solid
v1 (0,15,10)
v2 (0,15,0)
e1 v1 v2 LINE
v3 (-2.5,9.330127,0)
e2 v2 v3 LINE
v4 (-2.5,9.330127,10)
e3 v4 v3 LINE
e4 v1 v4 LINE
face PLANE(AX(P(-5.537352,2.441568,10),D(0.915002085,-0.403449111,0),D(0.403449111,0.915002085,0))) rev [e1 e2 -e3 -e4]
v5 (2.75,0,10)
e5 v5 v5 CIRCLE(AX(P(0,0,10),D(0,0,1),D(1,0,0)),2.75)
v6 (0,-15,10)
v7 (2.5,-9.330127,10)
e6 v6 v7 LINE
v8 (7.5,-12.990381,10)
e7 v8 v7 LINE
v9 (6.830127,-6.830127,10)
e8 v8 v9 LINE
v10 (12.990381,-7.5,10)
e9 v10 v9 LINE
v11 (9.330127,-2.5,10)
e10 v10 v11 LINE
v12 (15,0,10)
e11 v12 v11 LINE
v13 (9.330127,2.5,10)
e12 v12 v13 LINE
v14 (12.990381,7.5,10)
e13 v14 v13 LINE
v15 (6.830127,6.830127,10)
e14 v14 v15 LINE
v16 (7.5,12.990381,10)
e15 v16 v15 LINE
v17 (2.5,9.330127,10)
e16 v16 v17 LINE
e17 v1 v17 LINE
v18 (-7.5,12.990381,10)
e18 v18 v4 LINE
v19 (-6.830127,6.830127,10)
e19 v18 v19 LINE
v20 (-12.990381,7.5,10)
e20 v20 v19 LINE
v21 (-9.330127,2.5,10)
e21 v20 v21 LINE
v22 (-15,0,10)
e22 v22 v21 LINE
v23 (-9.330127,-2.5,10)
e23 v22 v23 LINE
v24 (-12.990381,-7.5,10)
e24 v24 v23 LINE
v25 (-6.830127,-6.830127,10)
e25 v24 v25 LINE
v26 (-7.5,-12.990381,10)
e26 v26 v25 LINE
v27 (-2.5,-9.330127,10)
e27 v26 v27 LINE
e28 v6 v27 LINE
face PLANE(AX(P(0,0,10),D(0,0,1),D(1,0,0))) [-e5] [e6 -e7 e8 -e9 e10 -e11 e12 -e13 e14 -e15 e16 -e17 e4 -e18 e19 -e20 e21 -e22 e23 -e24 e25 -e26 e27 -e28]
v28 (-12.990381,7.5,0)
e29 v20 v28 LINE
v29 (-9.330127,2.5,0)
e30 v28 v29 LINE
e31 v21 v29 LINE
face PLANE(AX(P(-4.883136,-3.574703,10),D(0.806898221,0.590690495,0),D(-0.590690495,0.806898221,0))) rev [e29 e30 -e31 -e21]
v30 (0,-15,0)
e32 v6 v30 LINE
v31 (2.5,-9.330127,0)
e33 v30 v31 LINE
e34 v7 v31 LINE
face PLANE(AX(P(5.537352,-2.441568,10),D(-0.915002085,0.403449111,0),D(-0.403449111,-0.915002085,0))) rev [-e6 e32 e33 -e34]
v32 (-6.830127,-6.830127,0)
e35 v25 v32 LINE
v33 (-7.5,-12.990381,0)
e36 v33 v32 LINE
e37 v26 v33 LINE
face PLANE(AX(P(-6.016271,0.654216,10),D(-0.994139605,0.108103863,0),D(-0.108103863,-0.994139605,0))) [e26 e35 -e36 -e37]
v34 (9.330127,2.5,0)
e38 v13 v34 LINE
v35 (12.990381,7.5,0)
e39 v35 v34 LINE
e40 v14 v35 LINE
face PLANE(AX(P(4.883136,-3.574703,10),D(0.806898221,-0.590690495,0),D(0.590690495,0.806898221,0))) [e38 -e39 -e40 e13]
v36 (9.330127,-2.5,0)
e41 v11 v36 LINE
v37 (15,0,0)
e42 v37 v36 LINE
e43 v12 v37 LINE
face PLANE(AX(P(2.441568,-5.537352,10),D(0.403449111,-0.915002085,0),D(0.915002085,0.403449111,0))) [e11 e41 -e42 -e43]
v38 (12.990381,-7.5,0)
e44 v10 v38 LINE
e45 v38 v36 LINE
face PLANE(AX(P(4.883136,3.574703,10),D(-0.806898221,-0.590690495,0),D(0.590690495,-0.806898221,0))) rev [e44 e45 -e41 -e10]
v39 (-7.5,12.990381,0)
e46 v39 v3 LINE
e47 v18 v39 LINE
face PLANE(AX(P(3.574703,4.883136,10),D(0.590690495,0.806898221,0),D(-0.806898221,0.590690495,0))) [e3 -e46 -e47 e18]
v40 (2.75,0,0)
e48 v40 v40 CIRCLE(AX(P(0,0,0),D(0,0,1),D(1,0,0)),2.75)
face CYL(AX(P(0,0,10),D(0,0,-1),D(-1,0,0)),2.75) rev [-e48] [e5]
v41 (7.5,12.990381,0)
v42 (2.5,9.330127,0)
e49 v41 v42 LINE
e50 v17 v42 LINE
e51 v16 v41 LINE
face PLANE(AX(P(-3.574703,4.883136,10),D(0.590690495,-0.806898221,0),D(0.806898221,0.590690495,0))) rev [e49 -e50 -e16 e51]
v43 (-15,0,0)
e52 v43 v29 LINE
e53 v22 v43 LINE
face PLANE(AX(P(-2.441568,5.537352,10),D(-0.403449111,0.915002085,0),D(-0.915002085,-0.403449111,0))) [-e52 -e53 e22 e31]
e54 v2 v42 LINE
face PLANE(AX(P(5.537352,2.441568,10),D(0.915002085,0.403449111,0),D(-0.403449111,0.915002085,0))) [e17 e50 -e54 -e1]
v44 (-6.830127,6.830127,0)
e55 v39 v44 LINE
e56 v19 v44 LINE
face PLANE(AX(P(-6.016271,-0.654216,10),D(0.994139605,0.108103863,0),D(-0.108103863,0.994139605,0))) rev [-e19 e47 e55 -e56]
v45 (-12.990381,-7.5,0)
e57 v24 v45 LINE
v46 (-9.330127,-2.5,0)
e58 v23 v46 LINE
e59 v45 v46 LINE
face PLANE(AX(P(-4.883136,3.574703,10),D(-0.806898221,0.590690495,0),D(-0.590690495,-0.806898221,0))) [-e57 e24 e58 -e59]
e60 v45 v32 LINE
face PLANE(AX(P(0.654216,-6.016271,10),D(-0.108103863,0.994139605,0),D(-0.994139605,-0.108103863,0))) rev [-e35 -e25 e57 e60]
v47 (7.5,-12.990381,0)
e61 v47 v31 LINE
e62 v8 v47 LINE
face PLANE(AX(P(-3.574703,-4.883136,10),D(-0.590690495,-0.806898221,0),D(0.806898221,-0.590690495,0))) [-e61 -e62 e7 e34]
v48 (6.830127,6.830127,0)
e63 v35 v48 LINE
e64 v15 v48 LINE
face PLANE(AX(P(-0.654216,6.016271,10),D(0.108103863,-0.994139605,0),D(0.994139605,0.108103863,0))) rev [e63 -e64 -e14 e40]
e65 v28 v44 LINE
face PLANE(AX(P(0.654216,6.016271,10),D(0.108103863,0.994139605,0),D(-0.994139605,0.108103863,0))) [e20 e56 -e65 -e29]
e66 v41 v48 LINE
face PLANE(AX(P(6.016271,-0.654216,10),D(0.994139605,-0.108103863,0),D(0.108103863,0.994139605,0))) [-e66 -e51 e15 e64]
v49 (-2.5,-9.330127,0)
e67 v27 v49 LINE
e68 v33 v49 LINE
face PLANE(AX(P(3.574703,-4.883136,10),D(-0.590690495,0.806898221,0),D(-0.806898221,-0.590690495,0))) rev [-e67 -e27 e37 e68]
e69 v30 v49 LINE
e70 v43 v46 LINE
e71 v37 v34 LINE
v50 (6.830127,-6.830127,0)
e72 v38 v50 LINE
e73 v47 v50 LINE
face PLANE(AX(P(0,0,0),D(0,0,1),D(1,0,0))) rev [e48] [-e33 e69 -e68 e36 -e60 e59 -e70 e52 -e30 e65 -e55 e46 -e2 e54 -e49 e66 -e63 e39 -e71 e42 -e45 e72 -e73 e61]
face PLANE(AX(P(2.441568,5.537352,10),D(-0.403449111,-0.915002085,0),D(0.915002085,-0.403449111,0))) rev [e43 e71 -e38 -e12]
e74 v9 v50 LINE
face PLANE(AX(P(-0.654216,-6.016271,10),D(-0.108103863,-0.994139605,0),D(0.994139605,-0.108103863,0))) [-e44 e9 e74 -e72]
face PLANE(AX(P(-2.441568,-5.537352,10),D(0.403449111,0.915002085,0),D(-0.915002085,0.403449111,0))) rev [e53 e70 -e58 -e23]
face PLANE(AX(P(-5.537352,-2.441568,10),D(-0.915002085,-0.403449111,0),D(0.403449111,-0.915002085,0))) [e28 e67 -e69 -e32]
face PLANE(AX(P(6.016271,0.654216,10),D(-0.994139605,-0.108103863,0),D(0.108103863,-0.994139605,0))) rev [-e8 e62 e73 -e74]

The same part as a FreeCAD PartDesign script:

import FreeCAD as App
import Part
import Sketcher
from FreeCAD import Vector


def add_polygon(sketch, points):
    """Adds a closed chain of lines whose ends are joined by coincident constraints."""
    first, n = sketch.GeometryCount, len(points)
    for a, b in zip(points, points[1:] + points[:1]):
        sketch.addGeometry(Part.LineSegment(App.Vector(*a, 0), App.Vector(*b, 0)), False)
    for i in range(n):
        sketch.addConstraint(Sketcher.Constraint("Coincident", first + i, 2, first + (i + 1) % n, 1))

doc = App.newDocument("Part")
body = doc.addObject("PartDesign::Body", "Body")

sketch1 = body.newObject("Sketcher::SketchObject", "Sketch")
sketch1.AttachmentSupport = (doc.getObject("XY_Plane"), [""])
sketch1.MapMode = "FlatFace"
add_polygon(sketch1, [(2.5, -9.3), (7.5, -13), (6.8, -6.8), (13, -7.5), (9.3, -2.5), (15, 0), (9.3, 2.5), (13, 7.5), (6.8, 6.8), (7.5, 13), (2.5, 9.3), (0, 15), (-2.5, 9.3), (-7.5, 13), (-6.8, 6.8), (-13, 7.5), (-9.3, 2.5), (-15, 0), (-9.3, -2.5), (-13, -7.5), (-6.8, -6.8), (-7.5, -13), (-2.5, -9.3), (0, -15)])
sketch1.addGeometry(Part.Circle(Vector(0, 0, 0), Vector(0, 0, 1), 2.8), False)
sketch1.addConstraint(Sketcher.Constraint("Coincident", 24, 3, -1, 1))
sketch1.addConstraint(Sketcher.Constraint("Symmetric", 0, 2, 12, 2, -1, 1))
sketch1.addConstraint(Sketcher.Constraint("Symmetric", 1, 2, 13, 2, -1, 1))
sketch1.addConstraint(Sketcher.Constraint("Symmetric", 2, 2, 14, 2, -1, 1))
sketch1.addConstraint(Sketcher.Constraint("Symmetric", 3, 2, 15, 2, -1, 1))
sketch1.addConstraint(Sketcher.Constraint("Symmetric", 4, 2, 16, 2, -1, 1))
sketch1.addConstraint(Sketcher.Constraint("Symmetric", 5, 2, 17, 2, -1, 1))
sketch1.addConstraint(Sketcher.Constraint("Symmetric", 6, 2, 18, 2, -1, 1))
sketch1.addConstraint(Sketcher.Constraint("Symmetric", 7, 2, 19, 2, -1, 1))
sketch1.addConstraint(Sketcher.Constraint("Symmetric", 8, 2, 20, 2, -1, 1))
sketch1.addConstraint(Sketcher.Constraint("Symmetric", 9, 2, 21, 2, -1, 1))
sketch1.addConstraint(Sketcher.Constraint("Symmetric", 10, 2, 22, 2, -1, 1))
sketch1.addConstraint(Sketcher.Constraint("Symmetric", 11, 2, 23, 2, -1, 1))
sketch1.addConstraint(Sketcher.Constraint("Symmetric", 9, 2, 11, 2, -2))
sketch1.addConstraint(Sketcher.Constraint("Symmetric", 8, 2, 12, 2, -2))
sketch1.addConstraint(Sketcher.Constraint("Symmetric", 7, 2, 13, 2, -2))
sketch1.addConstraint(Sketcher.Constraint("Symmetric", 6, 2, 14, 2, -2))
sketch1.addConstraint(Sketcher.Constraint("Symmetric", 5, 2, 15, 2, -2))
sketch1.addConstraint(Sketcher.Constraint("PointOnObject", 4, 2, -1))
sketch1.addConstraint(Sketcher.Constraint("PointOnObject", 10, 2, -2))
sketch1.addConstraint(Sketcher.Constraint("Perpendicular", 0, 6))
sketch1.addConstraint(Sketcher.Constraint("Perpendicular", 1, 7))
sketch1.addConstraint(Sketcher.Constraint("Perpendicular", 4, 10))
sketch1.addConstraint(Sketcher.Constraint("Equal", 0, 1))
sketch1.addConstraint(Sketcher.Constraint("Equal", 1, 2))
sketch1.addConstraint(Sketcher.Constraint("Equal", 2, 3))
sketch1.addConstraint(Sketcher.Constraint("Equal", 3, 4))
sketch1.addConstraint(Sketcher.Constraint("Equal", 9, 10))
sketch1.addConstraint(Sketcher.Constraint("Diameter", 24, 5.5))
sketch1.addConstraint(Sketcher.Constraint("DistanceX", -1, 1, 4, 2, 15.0))
sketch1.addConstraint(Sketcher.Constraint("DistanceY", 2, 2, 3, 2, 5.0))
sketch1.addConstraint(Sketcher.Constraint("DistanceY", 3, 2, 5, 2, 5.0))
sketch1.addConstraint(Sketcher.Constraint("DistanceX", 1, 2, 3, 2, 2.5))
pad1 = body.newObject("PartDesign::Pad", "Pad")
pad1.Profile = sketch1
pad1.Length = 10

doc.recompute()
